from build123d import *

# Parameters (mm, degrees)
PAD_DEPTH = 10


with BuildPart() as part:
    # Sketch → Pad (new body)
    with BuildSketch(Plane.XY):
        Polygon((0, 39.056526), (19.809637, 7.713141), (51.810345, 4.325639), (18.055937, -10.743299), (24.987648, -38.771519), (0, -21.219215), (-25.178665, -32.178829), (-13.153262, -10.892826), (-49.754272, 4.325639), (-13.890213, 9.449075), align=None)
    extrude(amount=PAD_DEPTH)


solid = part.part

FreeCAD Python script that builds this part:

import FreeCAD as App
import Part
import Sketcher
from FreeCAD import Vector
Q = App.Units.Quantity

doc = App.newDocument("Part")
body = doc.addObject("PartDesign::Body", "Body")

sketch1 = doc.addObject("Sketcher::SketchObject", "Sketch")
body.addObject(sketch1)
sketch1.AttachmentSupport = (doc.XY_Plane, [""])
sketch1.MapMode = "FlatFace"
sketch1.addGeometry([
    Part.LineSegment(Vector(20, 8, 0), Vector(0, 39, 0)),
    Part.LineSegment(Vector(0, 39, 0), Vector(-14, 9, 0)),
    Part.LineSegment(Vector(-14, 9, 0), Vector(-50, 4, 0)),
    Part.LineSegment(Vector(-50, 4, 0), Vector(-13, -11, 0)),
    Part.LineSegment(Vector(-13, -11, 0), Vector(-25, -32, 0)),
    Part.LineSegment(Vector(-25, -32, 0), Vector(0, -21, 0)),
    Part.LineSegment(Vector(0, -21, 0), Vector(25, -39, 0)),
    Part.LineSegment(Vector(25, -39, 0), Vector(18, -11, 0)),
    Part.LineSegment(Vector(18, -11, 0), Vector(52, 4, 0)),
    Part.LineSegment(Vector(52, 4, 0), Vector(20, 8, 0)),
], False)
sketch1.addConstraint([
    Sketcher.Constraint("Coincident", 0, 2, 1, 1),
    Sketcher.Constraint("Coincident", 1, 2, 2, 1),
    Sketcher.Constraint("Coincident", 2, 2, 3, 1),
    Sketcher.Constraint("Coincident", 3, 2, 4, 1),
    Sketcher.Constraint("Coincident", 4, 2, 5, 1),
    Sketcher.Constraint("Coincident", 5, 2, 6, 1),
    Sketcher.Constraint("Coincident", 6, 2, 7, 1),
    Sketcher.Constraint("Coincident", 7, 2, 8, 1),
    Sketcher.Constraint("Coincident", 8, 2, 9, 1),
    Sketcher.Constraint("Coincident", 9, 2, 0, 1),
    Sketcher.Constraint("PointOnObject", 0, 2, -2),
    Sketcher.Constraint("PointOnObject", 5, 2, -2),
    Sketcher.Constraint("Horizontal", 2, 2, 8, 2),
    Sketcher.Constraint("DistanceY", 7, 2, -1, 1, Q("10.743299 mm")),
    Sketcher.Constraint("DistanceY", 3, 2, 1, 2, Q("20.341901 mm")),
    Sketcher.Constraint("DistanceX", 3, 2, 7, 2, Q("31.209199 mm")),
    Sketcher.Constraint("DistanceX", 4, 2, 7, 2, Q("43.234602 mm")),
    Sketcher.Constraint("DistanceX", 7, 2, 9, 2, Q("1.7537 mm")),
    Sketcher.Constraint("Distance", 1, Q("32.70381 mm")),
    Sketcher.Constraint("Distance", 2, Q("36.22817 mm")),
    Sketcher.Constraint("Distance", 4, Q("24.447991 mm")),
    Sketcher.Constraint("DistanceY", -1, 1, 2, 2, Q("4.325639 mm")),
    Sketcher.Constraint("DistanceY", 4, 2, -1, 1, Q("32.178829 mm")),
    Sketcher.Constraint("DistanceX", -1, 1, 6, 2, Q("24.987648 mm")),
    Sketcher.Constraint("DistanceY", 6, 2, -1, 1, Q("38.771519 mm")),
    Sketcher.Constraint("DistanceY", -1, 1, 9, 2, Q("7.713141 mm")),
    Sketcher.Constraint("DistanceY", 1, 2, 0, 2, Q("29.607451 mm")),
    Sketcher.Constraint("DistanceX", 1, 2, 3, 2, Q("0.736951 mm")),
    Sketcher.Constraint("DistanceY", 5, 2, 3, 2, Q("10.326389 mm")),
    Sketcher.Constraint("DistanceX", 1, 2, 8, 2, Q("65.700558 mm")),
])
pad1 = doc.addObject("PartDesign::Pad", "Pad")
body.addObject(pad1)
pad1.Profile = sketch1
pad1.Length = 10

doc.recompute()
